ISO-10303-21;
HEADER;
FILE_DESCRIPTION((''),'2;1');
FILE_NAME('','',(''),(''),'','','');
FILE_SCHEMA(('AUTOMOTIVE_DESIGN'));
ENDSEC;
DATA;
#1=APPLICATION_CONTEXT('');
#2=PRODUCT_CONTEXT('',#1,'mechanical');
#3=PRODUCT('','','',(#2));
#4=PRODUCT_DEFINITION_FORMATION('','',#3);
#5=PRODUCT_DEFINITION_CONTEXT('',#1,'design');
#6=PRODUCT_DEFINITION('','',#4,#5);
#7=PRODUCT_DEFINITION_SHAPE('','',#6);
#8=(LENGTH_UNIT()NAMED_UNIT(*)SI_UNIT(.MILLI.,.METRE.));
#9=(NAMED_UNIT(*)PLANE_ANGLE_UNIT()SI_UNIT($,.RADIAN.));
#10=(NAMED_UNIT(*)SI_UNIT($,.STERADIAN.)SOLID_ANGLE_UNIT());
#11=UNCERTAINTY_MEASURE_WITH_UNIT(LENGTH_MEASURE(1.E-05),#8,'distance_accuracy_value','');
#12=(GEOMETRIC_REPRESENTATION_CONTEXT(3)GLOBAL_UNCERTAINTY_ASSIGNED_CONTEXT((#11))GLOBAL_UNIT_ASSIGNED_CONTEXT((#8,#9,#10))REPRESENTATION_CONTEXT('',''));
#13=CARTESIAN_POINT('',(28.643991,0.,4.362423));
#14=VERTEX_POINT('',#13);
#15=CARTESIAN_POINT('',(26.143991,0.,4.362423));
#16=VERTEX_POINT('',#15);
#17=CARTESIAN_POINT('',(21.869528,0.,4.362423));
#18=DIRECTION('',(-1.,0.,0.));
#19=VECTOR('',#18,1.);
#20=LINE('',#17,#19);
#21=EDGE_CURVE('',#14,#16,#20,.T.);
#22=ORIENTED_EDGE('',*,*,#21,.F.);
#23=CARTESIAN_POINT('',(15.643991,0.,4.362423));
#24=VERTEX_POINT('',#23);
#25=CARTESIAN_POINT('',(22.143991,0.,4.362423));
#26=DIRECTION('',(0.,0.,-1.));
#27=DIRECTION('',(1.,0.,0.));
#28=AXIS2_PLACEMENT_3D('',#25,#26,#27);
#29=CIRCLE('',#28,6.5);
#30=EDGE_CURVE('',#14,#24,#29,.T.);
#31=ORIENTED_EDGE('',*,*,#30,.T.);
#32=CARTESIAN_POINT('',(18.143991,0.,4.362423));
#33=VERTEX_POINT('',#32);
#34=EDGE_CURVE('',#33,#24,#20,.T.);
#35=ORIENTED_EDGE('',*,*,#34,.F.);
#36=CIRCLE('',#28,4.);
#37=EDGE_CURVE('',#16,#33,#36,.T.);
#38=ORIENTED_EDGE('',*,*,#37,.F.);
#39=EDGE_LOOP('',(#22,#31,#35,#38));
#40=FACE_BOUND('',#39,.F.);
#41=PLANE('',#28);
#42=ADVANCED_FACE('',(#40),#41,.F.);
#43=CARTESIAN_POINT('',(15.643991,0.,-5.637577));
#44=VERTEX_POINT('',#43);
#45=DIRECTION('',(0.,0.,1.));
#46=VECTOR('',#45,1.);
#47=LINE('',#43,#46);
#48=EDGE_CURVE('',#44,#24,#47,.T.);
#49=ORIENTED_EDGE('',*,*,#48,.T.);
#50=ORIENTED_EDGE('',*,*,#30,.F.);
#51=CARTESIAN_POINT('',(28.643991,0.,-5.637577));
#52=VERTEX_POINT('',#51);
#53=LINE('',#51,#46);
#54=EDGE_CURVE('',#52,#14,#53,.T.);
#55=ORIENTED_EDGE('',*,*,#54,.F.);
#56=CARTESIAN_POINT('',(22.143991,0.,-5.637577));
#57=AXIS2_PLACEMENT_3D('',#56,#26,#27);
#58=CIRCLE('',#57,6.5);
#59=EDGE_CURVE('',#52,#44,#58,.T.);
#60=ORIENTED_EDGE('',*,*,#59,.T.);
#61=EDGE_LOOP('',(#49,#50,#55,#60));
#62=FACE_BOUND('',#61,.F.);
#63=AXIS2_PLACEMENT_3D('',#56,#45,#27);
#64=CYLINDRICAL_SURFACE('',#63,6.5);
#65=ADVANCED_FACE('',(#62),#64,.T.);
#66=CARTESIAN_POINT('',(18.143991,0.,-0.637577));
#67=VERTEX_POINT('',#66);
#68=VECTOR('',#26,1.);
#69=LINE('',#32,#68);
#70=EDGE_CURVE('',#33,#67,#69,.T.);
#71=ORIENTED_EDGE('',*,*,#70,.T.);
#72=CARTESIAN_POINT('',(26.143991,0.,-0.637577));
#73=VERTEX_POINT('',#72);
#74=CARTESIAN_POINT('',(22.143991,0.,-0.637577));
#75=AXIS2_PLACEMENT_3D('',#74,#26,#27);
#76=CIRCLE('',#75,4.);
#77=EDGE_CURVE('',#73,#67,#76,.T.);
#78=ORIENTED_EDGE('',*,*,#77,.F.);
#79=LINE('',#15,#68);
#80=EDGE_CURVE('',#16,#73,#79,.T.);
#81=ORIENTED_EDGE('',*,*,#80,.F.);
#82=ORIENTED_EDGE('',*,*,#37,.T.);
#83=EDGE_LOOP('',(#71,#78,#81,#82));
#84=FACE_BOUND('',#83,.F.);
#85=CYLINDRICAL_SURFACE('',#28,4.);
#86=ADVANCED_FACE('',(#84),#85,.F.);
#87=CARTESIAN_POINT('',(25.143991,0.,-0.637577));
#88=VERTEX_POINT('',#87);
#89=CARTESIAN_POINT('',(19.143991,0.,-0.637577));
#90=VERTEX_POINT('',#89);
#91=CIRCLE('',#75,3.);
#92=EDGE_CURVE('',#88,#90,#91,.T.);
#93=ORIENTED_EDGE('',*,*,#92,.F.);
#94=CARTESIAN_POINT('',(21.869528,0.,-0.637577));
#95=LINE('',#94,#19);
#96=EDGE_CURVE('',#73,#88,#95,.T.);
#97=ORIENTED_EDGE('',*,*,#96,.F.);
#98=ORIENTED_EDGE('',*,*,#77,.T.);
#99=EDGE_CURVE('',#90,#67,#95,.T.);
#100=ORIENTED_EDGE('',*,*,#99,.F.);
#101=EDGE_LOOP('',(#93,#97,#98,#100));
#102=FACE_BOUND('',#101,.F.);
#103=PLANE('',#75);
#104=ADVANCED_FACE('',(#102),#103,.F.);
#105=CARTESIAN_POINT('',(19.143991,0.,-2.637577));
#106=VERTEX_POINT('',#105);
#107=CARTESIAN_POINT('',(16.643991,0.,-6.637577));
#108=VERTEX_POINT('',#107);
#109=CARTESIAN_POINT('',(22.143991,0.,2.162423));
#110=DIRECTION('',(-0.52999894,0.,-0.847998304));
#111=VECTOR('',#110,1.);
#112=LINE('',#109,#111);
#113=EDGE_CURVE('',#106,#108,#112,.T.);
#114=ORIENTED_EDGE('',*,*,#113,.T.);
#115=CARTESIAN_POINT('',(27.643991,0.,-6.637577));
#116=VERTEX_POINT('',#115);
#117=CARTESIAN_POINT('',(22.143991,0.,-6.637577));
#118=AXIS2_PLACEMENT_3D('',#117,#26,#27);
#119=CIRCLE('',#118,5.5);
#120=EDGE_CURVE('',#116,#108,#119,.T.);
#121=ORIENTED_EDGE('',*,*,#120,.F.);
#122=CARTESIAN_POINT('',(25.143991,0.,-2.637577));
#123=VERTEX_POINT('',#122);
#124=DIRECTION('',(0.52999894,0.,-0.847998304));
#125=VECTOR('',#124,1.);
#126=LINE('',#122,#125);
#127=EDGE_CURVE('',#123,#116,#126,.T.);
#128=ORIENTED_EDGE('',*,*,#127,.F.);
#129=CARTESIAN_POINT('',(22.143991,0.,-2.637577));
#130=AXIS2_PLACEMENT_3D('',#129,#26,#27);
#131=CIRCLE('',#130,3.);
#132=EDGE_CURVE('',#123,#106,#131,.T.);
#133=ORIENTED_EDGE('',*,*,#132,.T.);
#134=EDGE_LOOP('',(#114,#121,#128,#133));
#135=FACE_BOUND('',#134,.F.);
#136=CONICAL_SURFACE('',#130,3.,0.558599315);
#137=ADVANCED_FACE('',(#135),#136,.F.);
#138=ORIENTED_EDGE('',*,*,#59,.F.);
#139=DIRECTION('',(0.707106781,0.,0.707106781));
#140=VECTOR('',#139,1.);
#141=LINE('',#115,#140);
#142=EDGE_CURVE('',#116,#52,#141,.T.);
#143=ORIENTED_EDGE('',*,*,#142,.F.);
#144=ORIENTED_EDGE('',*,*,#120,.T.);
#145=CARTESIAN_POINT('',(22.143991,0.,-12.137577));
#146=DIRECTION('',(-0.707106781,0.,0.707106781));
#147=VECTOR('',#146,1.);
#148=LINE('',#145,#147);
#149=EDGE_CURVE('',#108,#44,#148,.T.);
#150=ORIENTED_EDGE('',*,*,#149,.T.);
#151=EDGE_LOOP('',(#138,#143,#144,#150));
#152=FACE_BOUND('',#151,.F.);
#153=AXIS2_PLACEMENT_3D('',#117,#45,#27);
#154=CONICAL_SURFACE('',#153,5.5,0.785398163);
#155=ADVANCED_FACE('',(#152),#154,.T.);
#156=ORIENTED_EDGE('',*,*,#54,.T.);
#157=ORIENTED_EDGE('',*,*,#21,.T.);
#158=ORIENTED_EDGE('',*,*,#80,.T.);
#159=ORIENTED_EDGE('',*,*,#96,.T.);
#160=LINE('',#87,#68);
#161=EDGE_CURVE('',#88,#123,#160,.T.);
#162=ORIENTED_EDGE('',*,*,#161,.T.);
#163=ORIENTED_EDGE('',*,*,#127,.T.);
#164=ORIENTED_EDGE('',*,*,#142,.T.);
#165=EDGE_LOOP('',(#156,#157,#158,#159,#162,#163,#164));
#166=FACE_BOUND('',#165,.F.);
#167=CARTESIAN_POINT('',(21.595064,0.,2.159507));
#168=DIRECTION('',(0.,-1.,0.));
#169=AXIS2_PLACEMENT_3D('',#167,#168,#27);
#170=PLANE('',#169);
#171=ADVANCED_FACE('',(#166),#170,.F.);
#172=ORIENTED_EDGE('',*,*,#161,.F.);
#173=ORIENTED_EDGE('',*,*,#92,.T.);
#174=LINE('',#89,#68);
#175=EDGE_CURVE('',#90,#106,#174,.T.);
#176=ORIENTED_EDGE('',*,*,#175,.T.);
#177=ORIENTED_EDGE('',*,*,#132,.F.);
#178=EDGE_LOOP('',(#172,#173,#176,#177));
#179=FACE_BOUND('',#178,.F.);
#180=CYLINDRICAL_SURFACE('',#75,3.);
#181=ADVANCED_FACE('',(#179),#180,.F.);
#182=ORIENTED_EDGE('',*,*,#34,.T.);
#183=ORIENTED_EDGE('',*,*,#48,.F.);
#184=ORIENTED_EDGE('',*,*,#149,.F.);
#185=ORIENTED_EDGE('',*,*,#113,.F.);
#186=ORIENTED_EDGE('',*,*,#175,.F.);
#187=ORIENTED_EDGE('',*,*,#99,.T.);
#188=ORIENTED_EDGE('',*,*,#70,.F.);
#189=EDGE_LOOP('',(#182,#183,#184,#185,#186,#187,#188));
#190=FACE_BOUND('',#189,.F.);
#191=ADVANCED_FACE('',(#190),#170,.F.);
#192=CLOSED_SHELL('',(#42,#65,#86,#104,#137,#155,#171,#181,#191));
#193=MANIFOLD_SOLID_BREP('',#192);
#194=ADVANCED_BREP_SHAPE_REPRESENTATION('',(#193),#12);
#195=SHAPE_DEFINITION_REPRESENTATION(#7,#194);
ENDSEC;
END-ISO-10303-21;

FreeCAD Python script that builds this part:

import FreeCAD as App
import Part
import Sketcher
Q = App.Units.Quantity

doc = App.newDocument("Part")
body = doc.addObject("PartDesign::Body", "Body")

# Sketch on XZ plane
sketch1 = body.newObject("Sketcher::SketchObject", "Sketch")
sketch1.AttachmentSupport = (doc.getObject("XZ_Plane"), [""])
sketch1.MapMode = "FlatFace"
sketch1.addGeometry([
    Part.LineSegment(App.Vector(28.6, 4.4, 0), App.Vector(26.1, 4.4, 0)),  # 0
    Part.LineSegment(App.Vector(26.1, 4.4, 0), App.Vector(26.1, -0.6, 0)),  # 1
    Part.LineSegment(App.Vector(26.1, -0.6, 0), App.Vector(25.1, -0.6, 0)),  # 2
    Part.LineSegment(App.Vector(25.1, -0.6, 0), App.Vector(25.1, -2.6, 0)),  # 3
    Part.LineSegment(App.Vector(25.1, -2.6, 0), App.Vector(27.6, -6.6, 0)),  # 4
    Part.LineSegment(App.Vector(27.6, -6.6, 0), App.Vector(28.6, -5.6, 0)),  # 5
    Part.LineSegment(App.Vector(28.6, -5.6, 0), App.Vector(28.6, 4.4, 0)),  # 6
], False)
sketch1.addGeometry(Part.LineSegment(App.Vector(22.1, 4.4, 0), App.Vector(22.1, -6.6, 0)), True)  # axis
sketch1.addConstraint([
    Sketcher.Constraint("Coincident", 0, 2, 1, 1),
    Sketcher.Constraint("Coincident", 1, 2, 2, 1),
    Sketcher.Constraint("Coincident", 2, 2, 3, 1),
    Sketcher.Constraint("Coincident", 3, 2, 4, 1),
    Sketcher.Constraint("Coincident", 4, 2, 5, 1),
    Sketcher.Constraint("Coincident", 5, 2, 6, 1),
    Sketcher.Constraint("Coincident", 6, 2, 0, 1),
    Sketcher.Constraint("Horizontal", 0),
    Sketcher.Constraint("Vertical", 1),
    Sketcher.Constraint("Horizontal", 2),
    Sketcher.Constraint("Vertical", 3),
    Sketcher.Constraint("Vertical", 6),
    Sketcher.Constraint("Vertical", 7),
    Sketcher.Constraint("Horizontal", 6, 2, 7, 1),
    Sketcher.Constraint("Horizontal", 4, 2, 7, 2),
    Sketcher.Constraint("DistanceX", 2, 2, 2, 1, Q("1 mm")),
    Sketcher.Constraint("DistanceY", 1, 2, 1, 1, Q("5 mm")),
    Sketcher.Constraint("DistanceY", 3, 2, 3, 1, Q("2 mm")),
    Sketcher.Constraint("DistanceY", 6, 1, 6, 2, Q("10 mm")),
    Sketcher.Constraint("DistanceY", 7, 2, 7, 1, Q("11 mm")),
    Sketcher.Constraint("Angle", 5, Q("45 deg")),
    Sketcher.Constraint("DistanceX", 0, 2, 0, 1, Q("2.5 mm")),
    Sketcher.Constraint("DistanceX", 7, 1, 0, 2, Q("4 mm")),
    Sketcher.Constraint("DistanceX", -1, 1, 0, 2, Q("26.143991 mm")),
    Sketcher.Constraint("DistanceY", -1, 1, 0, 2, Q("4.362423 mm")),
])
revolution = body.newObject("PartDesign::Revolution", "Revolution")
revolution.Profile = sketch1
revolution.ReferenceAxis = (sketch1, ["Axis0"])
revolution.Angle = 360

# Sketch on XZ plane
sketch2 = body.newObject("Sketcher::SketchObject", "Sketch001")
sketch2.AttachmentSupport = (doc.getObject("XZ_Plane"), [""])
sketch2.MapMode = "FlatFace"
sketch2.addGeometry([
    Part.LineSegment(App.Vector(-5, 27, 0), App.Vector(-5, -23, 0)),
    Part.LineSegment(App.Vector(-5, -23, 0), App.Vector(49, -23, 0)),
    Part.LineSegment(App.Vector(49, -23, 0), App.Vector(49, 27, 0)),
    Part.LineSegment(App.Vector(49, 27, 0), App.Vector(-5, 27, 0)),
], False)
sketch2.addConstraint([
    Sketcher.Constraint("Coincident", 0, 2, 1, 1),
    Sketcher.Constraint("Coincident", 1, 2, 2, 1),
    Sketcher.Constraint("Coincident", 2, 2, 3, 1),
    Sketcher.Constraint("Coincident", 3, 2, 0, 1),
    Sketcher.Constraint("Vertical", 0),
    Sketcher.Constraint("Horizontal", 1),
    Sketcher.Constraint("Vertical", 2),
    Sketcher.Constraint("Horizontal", 3),
    Sketcher.Constraint("DistanceY", 0, 2, -1, 1, Q("22.746801 mm")),
    Sketcher.Constraint("DistanceX", 1, 1, 1, 2, Q("53.843694 mm")),
    Sketcher.Constraint("DistanceY", 0, 2, 0, 1, Q("49.812616 mm")),
    Sketcher.Constraint("DistanceX", -1, 1, 1, 2, Q("48.516911 mm")),
])
pocket1 = body.newObject("PartDesign::Pocket", "Pocket")
pocket1.Profile = sketch2
pocket1.Type = "ThroughAll"

doc.recompute()
